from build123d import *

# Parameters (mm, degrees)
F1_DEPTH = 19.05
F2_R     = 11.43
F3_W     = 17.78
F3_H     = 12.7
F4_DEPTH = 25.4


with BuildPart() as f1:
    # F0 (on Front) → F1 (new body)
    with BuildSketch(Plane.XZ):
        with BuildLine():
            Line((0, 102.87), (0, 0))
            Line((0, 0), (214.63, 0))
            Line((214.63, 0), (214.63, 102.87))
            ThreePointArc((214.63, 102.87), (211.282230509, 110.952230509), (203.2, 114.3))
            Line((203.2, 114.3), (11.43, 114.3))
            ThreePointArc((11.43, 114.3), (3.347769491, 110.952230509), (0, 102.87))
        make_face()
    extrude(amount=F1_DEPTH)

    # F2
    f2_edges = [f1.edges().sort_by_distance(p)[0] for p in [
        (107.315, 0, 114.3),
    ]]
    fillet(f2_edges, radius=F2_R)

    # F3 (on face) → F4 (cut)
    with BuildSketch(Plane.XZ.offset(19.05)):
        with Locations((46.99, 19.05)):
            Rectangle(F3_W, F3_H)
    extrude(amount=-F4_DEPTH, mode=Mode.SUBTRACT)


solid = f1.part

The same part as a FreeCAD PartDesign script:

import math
import FreeCAD as App
import Part
import Sketcher
from FreeCAD import Vector
Q = App.Units.Quantity


def edges_at(feature, points):
    """Names of the edges that pass closest to the given points."""
    edges = feature.Shape.Edges
    near = lambda p: min(range(len(edges)), key=lambda i: edges[i].distToShape(Part.Vertex(*p))[0])
    return sorted({f"Edge{near(p) + 1}" for p in points})


def add_polygon(sketch, points):
    """Adds a closed chain of lines whose ends are joined by coincident constraints."""
    first, n = sketch.GeometryCount, len(points)
    for a, b in zip(points, points[1:] + points[:1]):
        sketch.addGeometry(Part.LineSegment(App.Vector(*a, 0), App.Vector(*b, 0)), False)
    for i in range(n):
        sketch.addConstraint(Sketcher.Constraint("Coincident", first + i, 2, first + (i + 1) % n, 1))

doc = App.newDocument("Part")
params = doc.addObject("Spreadsheet::Sheet", "Params")
for row, (alias, value) in enumerate([
    ("sketch1_radius", "0.45 in"),
    ("sketch1_height", "4.05 in"),
    ("pad1_length", "0.75 in"),
    ("fillet_radius", "0.45 in"),
    ("sketch2_width", "0.7 in"),
    ("sketch2_height", "0.5 in"),
    ("pocket1_length", "1 in"),
], start=1):
    params.set(f"A{row}", alias)
    params.set(f"B{row}", "=" + value)
    params.setAlias(f"B{row}", alias)

body = doc.addObject("PartDesign::Body", "Body")

# Sketch on XZ plane
sketch1 = body.newObject("Sketcher::SketchObject", "Sketch")
sketch1.AttachmentSupport = (doc.getObject("XZ_Plane"), [""])
sketch1.MapMode = "FlatFace"
sketch1.addGeometry([
    Part.LineSegment(Vector(0, 103, 0), Vector(0, 0, 0)),  # 0
    Part.LineSegment(Vector(0, 0, 0), Vector(215, 0, 0)),  # 1
    Part.LineSegment(Vector(215, 0, 0), Vector(215, 103, 0)),  # 2
    Part.ArcOfCircle(Part.Circle(Vector(203, 103, 0), Vector(0, 0, 1), 11), math.radians(0), math.radians(90)),  # 3
    Part.LineSegment(Vector(203, 114, 0), Vector(11, 114, 0)),  # 4
    Part.ArcOfCircle(Part.Circle(Vector(11, 103, 0), Vector(0, 0, 1), 11), math.radians(90), math.radians(180)),  # 5
], False)
sketch1.addConstraint([
    Sketcher.Constraint("Coincident", 0, 2, 1, 1),
    Sketcher.Constraint("Coincident", 1, 2, 2, 1),
    Sketcher.Constraint("Tangent", 2, 2, 3, 1),
    Sketcher.Constraint("Tangent", 3, 2, 4, 1),
    Sketcher.Constraint("Tangent", 4, 2, 5, 1),
    Sketcher.Constraint("Tangent", 5, 2, 0, 1),
    Sketcher.Constraint("Vertical", 0),
    Sketcher.Constraint("Horizontal", 1),
    Sketcher.Constraint("Vertical", 2),
    Sketcher.Constraint("Horizontal", 4),
    Sketcher.Constraint("Coincident", 0, 2, -1, 1),
    Sketcher.Constraint("Equal", 3, 5),
    Sketcher.Constraint("Radius", 3, Q("0.45 in")),
    Sketcher.Constraint("DistanceX", -1, 1, 3, 3, Q("8 in")),
    Sketcher.Constraint("DistanceY", 0, 2, 0, 1, Q("4.05 in")),
])
sketch1.setExpression("Constraints[12]", "Params.sketch1_radius")
sketch1.setExpression("Constraints[14]", "Params.sketch1_height")
pad1 = body.newObject("PartDesign::Pad", "Pad")
pad1.Profile = sketch1
pad1.setExpression("Length", "Params.pad1_length")
doc.recompute()

fillet = body.newObject("PartDesign::Fillet", "Fillet")
fillet.Base = (pad1, edges_at(pad1, [(107.315, 0, 114.3)]))
fillet.setExpression("Radius", "Params.fillet_radius")

# Sketch on XZ plane
sketch2 = body.newObject("Sketcher::SketchObject", "Sketch001")
sketch2.AttachmentSupport = (doc.getObject("XZ_Plane"), [""])
sketch2.MapMode = "FlatFace"
sketch2.AttachmentOffset = App.Placement(Vector(0, 0, 0.75 * 25.4), App.Rotation())
add_polygon(sketch2, [(38, 25), (38, 13), (56, 13), (56, 25)])  # lines 0-3
sketch2.addConstraint([
    Sketcher.Constraint("Vertical", 0),
    Sketcher.Constraint("Horizontal", 1),
    Sketcher.Constraint("Vertical", 2),
    Sketcher.Constraint("Horizontal", 3),
    Sketcher.Constraint("DistanceX", 1, 1, 1, 2, Q("0.7 in")),
    Sketcher.Constraint("DistanceY", 0, 2, 0, 1, Q("0.5 in")),
    Sketcher.Constraint("DistanceY", -1, 1, 2, 2, Q("1 in")),
    Sketcher.Constraint("DistanceX", -1, 1, 0, 2, Q("1.5 in")),
])
sketch2.setExpression("Constraints[8]", "Params.sketch2_width")
sketch2.setExpression("Constraints[9]", "Params.sketch2_height")
pocket1 = body.newObject("PartDesign::Pocket", "Pocket")
pocket1.Profile = sketch2
pocket1.setExpression("Length", "Params.pocket1_length")

doc.recompute()
